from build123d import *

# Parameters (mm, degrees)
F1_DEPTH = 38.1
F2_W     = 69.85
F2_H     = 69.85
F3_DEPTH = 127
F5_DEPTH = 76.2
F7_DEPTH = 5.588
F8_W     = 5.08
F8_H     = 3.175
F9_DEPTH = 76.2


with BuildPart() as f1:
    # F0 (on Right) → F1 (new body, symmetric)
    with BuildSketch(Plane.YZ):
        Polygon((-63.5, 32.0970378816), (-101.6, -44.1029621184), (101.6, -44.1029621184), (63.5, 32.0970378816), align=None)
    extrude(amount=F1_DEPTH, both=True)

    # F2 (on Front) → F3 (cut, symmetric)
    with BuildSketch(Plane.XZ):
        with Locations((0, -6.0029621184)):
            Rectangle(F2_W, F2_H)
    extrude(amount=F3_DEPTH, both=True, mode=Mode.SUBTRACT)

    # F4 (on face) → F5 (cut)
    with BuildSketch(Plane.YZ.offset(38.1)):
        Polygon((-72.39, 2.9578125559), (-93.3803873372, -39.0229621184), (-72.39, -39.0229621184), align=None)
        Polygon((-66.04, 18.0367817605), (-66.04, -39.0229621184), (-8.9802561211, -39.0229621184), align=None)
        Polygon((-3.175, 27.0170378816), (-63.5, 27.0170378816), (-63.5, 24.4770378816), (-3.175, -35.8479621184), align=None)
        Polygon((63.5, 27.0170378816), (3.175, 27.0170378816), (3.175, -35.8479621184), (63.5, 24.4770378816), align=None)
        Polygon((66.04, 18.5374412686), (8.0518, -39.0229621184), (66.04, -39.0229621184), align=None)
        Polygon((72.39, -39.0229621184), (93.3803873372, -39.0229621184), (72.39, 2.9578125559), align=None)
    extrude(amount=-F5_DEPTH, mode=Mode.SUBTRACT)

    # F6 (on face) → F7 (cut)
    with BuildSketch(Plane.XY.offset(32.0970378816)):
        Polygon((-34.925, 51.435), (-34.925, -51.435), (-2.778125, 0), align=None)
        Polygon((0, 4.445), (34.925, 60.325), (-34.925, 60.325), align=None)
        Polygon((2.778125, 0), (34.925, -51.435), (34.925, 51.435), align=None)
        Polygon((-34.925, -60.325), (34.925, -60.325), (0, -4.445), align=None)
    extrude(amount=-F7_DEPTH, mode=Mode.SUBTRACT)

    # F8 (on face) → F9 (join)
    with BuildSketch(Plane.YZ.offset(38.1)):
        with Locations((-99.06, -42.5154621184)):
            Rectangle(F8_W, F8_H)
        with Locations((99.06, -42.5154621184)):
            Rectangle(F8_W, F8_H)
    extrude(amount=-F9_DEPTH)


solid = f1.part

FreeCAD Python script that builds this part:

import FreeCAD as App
import Part
import Sketcher
from FreeCAD import Vector
Q = App.Units.Quantity

doc = App.newDocument("Part")
body = doc.addObject("PartDesign::Body", "Body")

# Sketch on YZ plane
sketch1 = body.newObject("Sketcher::SketchObject", "Sketch")
sketch1.AttachmentSupport = (doc.getObject("YZ_Plane"), [""])
sketch1.MapMode = "FlatFace"
sketch1.addGeometry(Part.LineSegment(Vector(-64, 32, 0), Vector(-102, -44, 0)), False)
sketch1.addGeometry(Part.LineSegment(Vector(-102, -44, 0), Vector(102, -44, 0)), False)
sketch1.addGeometry(Part.LineSegment(Vector(102, -44, 0), Vector(64, 32, 0)), False)
sketch1.addGeometry(Part.LineSegment(Vector(64, 32, 0), Vector(-64, 32, 0)), False)
sketch1.addConstraint(Sketcher.Constraint("Coincident", 0, 2, 1, 1))
sketch1.addConstraint(Sketcher.Constraint("Coincident", 1, 2, 2, 1))
sketch1.addConstraint(Sketcher.Constraint("Coincident", 2, 2, 3, 1))
sketch1.addConstraint(Sketcher.Constraint("Coincident", 3, 2, 0, 1))
sketch1.addConstraint(Sketcher.Constraint("Horizontal", 1))
sketch1.addConstraint(Sketcher.Constraint("Horizontal", 3))
sketch1.addConstraint(Sketcher.Constraint("Equal", 0, 2))
sketch1.addConstraint(Sketcher.Constraint("DistanceX", 1, 1, 1, 2, Q("8 in")))
sketch1.addConstraint(Sketcher.Constraint("DistanceX", 3, 2, 3, 1, Q("5 in")))
sketch1.addConstraint(Sketcher.Constraint("DistanceX", 0, 2, -1, 1, Q("4 in")))
sketch1.addConstraint(Sketcher.Constraint("DistanceY", 1, 2, 2, 2, Q("3 in")))
sketch1.addConstraint(Sketcher.Constraint("DistanceY", 0, 2, -1, 1, Q("44.102962 mm")))
pad1 = body.newObject("PartDesign::Pad", "Pad")
pad1.Profile = sketch1
pad1.Length = Q("3 in")
pad1.Midplane = True

# Sketch on XZ plane
sketch2 = body.newObject("Sketcher::SketchObject", "Sketch001")
sketch2.AttachmentSupport = (doc.getObject("XZ_Plane"), [""])
sketch2.MapMode = "FlatFace"
sketch2.addGeometry(Part.LineSegment(Vector(-35, 29, 0), Vector(-35, -41, 0)), False)
sketch2.addGeometry(Part.LineSegment(Vector(-35, -41, 0), Vector(35, -41, 0)), False)
sketch2.addGeometry(Part.LineSegment(Vector(35, -41, 0), Vector(35, 29, 0)), False)
sketch2.addGeometry(Part.LineSegment(Vector(35, 29, 0), Vector(-35, 29, 0)), False)
sketch2.addConstraint(Sketcher.Constraint("Coincident", 0, 2, 1, 1))
sketch2.addConstraint(Sketcher.Constraint("Coincident", 1, 2, 2, 1))
sketch2.addConstraint(Sketcher.Constraint("Coincident", 2, 2, 3, 1))
sketch2.addConstraint(Sketcher.Constraint("Coincident", 3, 2, 0, 1))
sketch2.addConstraint(Sketcher.Constraint("Vertical", 0))
sketch2.addConstraint(Sketcher.Constraint("Horizontal", 1))
sketch2.addConstraint(Sketcher.Constraint("Vertical", 2))
sketch2.addConstraint(Sketcher.Constraint("Horizontal", 3))
sketch2.addConstraint(Sketcher.Constraint("Equal", 3, 0))
sketch2.addConstraint(Sketcher.Constraint("DistanceX", 1, 1, 1, 2, Q("2.75 in")))
sketch2.addConstraint(Sketcher.Constraint("DistanceX", 0, 2, -1, 1, Q("1.375 in")))
sketch2.addConstraint(Sketcher.Constraint("DistanceY", 0, 2, -1, 1, Q("40.927962 mm")))
pocket1 = body.newObject("PartDesign::Pocket", "Pocket")
pocket1.Profile = sketch2
pocket1.Length = Q("10 in")
pocket1.Midplane = True

# Sketch on YZ plane
sketch3 = body.newObject("Sketcher::SketchObject", "Sketch002")
sketch3.AttachmentSupport = (doc.getObject("YZ_Plane"), [""])
sketch3.MapMode = "FlatFace"
sketch3.AttachmentOffset = App.Placement(Vector(0, 0, 1.5 * 25.4), App.Rotation())
sketch3.addGeometry(Part.LineSegment(Vector(-72.4, 3, 0), Vector(-93.4, -39, 0)), False)
sketch3.addGeometry(Part.LineSegment(Vector(-93.4, -39, 0), Vector(-72.4, -39, 0)), False)
sketch3.addGeometry(Part.LineSegment(Vector(-72.4, -39, 0), Vector(-72.4, 3, 0)), False)
sketch3.addGeometry(Part.LineSegment(Vector(-66, 18, 0), Vector(-66, -39, 0)), False)
sketch3.addGeometry(Part.LineSegment(Vector(-66, -39, 0), Vector(-9, -39, 0)), False)
sketch3.addGeometry(Part.LineSegment(Vector(-9, -39, 0), Vector(-66, 18, 0)), False)
sketch3.addGeometry(Part.LineSegment(Vector(-3.2, 27, 0), Vector(-63.5, 27, 0)), False)
sketch3.addGeometry(Part.LineSegment(Vector(-63.5, 27, 0), Vector(-63.5, 24.5, 0)), False)
sketch3.addGeometry(Part.LineSegment(Vector(-63.5, 24.5, 0), Vector(-3.2, -35.8, 0)), False)
sketch3.addGeometry(Part.LineSegment(Vector(-3.2, -35.8, 0), Vector(-3.2, 27, 0)), False)
sketch3.addGeometry(Part.LineSegment(Vector(63.5, 27, 0), Vector(3.2, 27, 0)), False)
sketch3.addGeometry(Part.LineSegment(Vector(3.2, 27, 0), Vector(3.2, -35.8, 0)), False)
sketch3.addGeometry(Part.LineSegment(Vector(3.2, -35.8, 0), Vector(63.5, 24.5, 0)), False)
sketch3.addGeometry(Part.LineSegment(Vector(63.5, 24.5, 0), Vector(63.5, 27, 0)), False)
sketch3.addGeometry(Part.LineSegment(Vector(66, 18.5, 0), Vector(8.1, -39, 0)), False)
sketch3.addGeometry(Part.LineSegment(Vector(8.1, -39, 0), Vector(66, -39, 0)), False)
sketch3.addGeometry(Part.LineSegment(Vector(66, -39, 0), Vector(66, 18.5, 0)), False)
sketch3.addGeometry(Part.LineSegment(Vector(72.4, -39, 0), Vector(93.4, -39, 0)), False)
sketch3.addGeometry(Part.LineSegment(Vector(93.4, -39, 0), Vector(72.4, 3, 0)), False)
sketch3.addGeometry(Part.LineSegment(Vector(72.4, 3, 0), Vector(72.4, -39, 0)), False)
sketch3.addConstraint(Sketcher.Constraint("Coincident", 0, 2, 1, 1))
sketch3.addConstraint(Sketcher.Constraint("Coincident", 1, 2, 2, 1))
sketch3.addConstraint(Sketcher.Constraint("Coincident", 2, 2, 0, 1))
sketch3.addConstraint(Sketcher.Constraint("Coincident", 3, 2, 4, 1))
sketch3.addConstraint(Sketcher.Constraint("Coincident", 4, 2, 5, 1))
sketch3.addConstraint(Sketcher.Constraint("Coincident", 5, 2, 3, 1))
sketch3.addConstraint(Sketcher.Constraint("Coincident", 6, 2, 7, 1))
sketch3.addConstraint(Sketcher.Constraint("Coincident", 7, 2, 8, 1))
sketch3.addConstraint(Sketcher.Constraint("Coincident", 8, 2, 9, 1))
sketch3.addConstraint(Sketcher.Constraint("Coincident", 9, 2, 6, 1))
sketch3.addConstraint(Sketcher.Constraint("Coincident", 10, 2, 11, 1))
sketch3.addConstraint(Sketcher.Constraint("Coincident", 11, 2, 12, 1))
sketch3.addConstraint(Sketcher.Constraint("Coincident", 12, 2, 13, 1))
sketch3.addConstraint(Sketcher.Constraint("Coincident", 13, 2, 10, 1))
sketch3.addConstraint(Sketcher.Constraint("Coincident", 14, 2, 15, 1))
sketch3.addConstraint(Sketcher.Constraint("Coincident", 15, 2, 16, 1))
sketch3.addConstraint(Sketcher.Constraint("Coincident", 16, 2, 14, 1))
sketch3.addConstraint(Sketcher.Constraint("Coincident", 17, 2, 18, 1))
sketch3.addConstraint(Sketcher.Constraint("Coincident", 18, 2, 19, 1))
sketch3.addConstraint(Sketcher.Constraint("Coincident", 19, 2, 17, 1))
sketch3.addConstraint(Sketcher.Constraint("Horizontal", 1))
sketch3.addConstraint(Sketcher.Constraint("Vertical", 2))
sketch3.addConstraint(Sketcher.Constraint("Vertical", 3))
sketch3.addConstraint(Sketcher.Constraint("Horizontal", 4))
sketch3.addConstraint(Sketcher.Constraint("Horizontal", 6))
sketch3.addConstraint(Sketcher.Constraint("Vertical", 7))
sketch3.addConstraint(Sketcher.Constraint("Vertical", 9))
sketch3.addConstraint(Sketcher.Constraint("Horizontal", 10))
sketch3.addConstraint(Sketcher.Constraint("Vertical", 11))
sketch3.addConstraint(Sketcher.Constraint("Vertical", 13))
sketch3.addConstraint(Sketcher.Constraint("Horizontal", 15))
sketch3.addConstraint(Sketcher.Constraint("Vertical", 16))
sketch3.addConstraint(Sketcher.Constraint("Horizontal", 17))
sketch3.addConstraint(Sketcher.Constraint("Vertical", 19))
sketch3.addConstraint(Sketcher.Constraint("Symmetric", 9, 2, 10, 2, -2))
sketch3.addConstraint(Sketcher.Constraint("Symmetric", 7, 2, 12, 2, -2))
sketch3.addConstraint(Sketcher.Constraint("Symmetric", 3, 2, 15, 2, -2))
sketch3.addConstraint(Sketcher.Constraint("Symmetric", 0, 2, 17, 2, -2))
sketch3.addConstraint(Sketcher.Constraint("Symmetric", 2, 2, 18, 2, -2))
sketch3.addConstraint(Sketcher.Constraint("Parallel", 5, 8))
sketch3.addConstraint(Sketcher.Constraint("Perpendicular", 8, 12))
sketch3.addConstraint(Sketcher.Constraint("Horizontal", 1, 2, 3, 2))
sketch3.addConstraint(Sketcher.Constraint("Horizontal", 8, 2, 11, 2))
sketch3.addConstraint(Sketcher.Constraint("DistanceY", 7, 2, 7, 1, Q("0.1 in")))
sketch3.addConstraint(Sketcher.Constraint("DistanceX", 3, 2, -1, 1, Q("2.6 in")))
sketch3.addConstraint(Sketcher.Constraint("DistanceX", 6, 2, -1, 1, Q("2.5 in")))
sketch3.addConstraint(Sketcher.Constraint("DistanceY", 3, 2, 6, 2, Q("2.6 in")))
sketch3.addConstraint(Sketcher.Constraint("DistanceX", 6, 2, 6, 1, Q("2.375 in")))
sketch3.addConstraint(Sketcher.Constraint("DistanceX", 15, 1, 15, 2, Q("2.283 in")))
sketch3.addConstraint(Sketcher.Constraint("DistanceX", 1, 2, -1, 1, Q("2.85 in")))
sketch3.addConstraint(Sketcher.Constraint("Distance", 14, Q("81.705761 mm")))
sketch3.addConstraint(Sketcher.Constraint("DistanceX", 1, 1, 1, 2, Q("20.990387 mm")))
sketch3.addConstraint(Sketcher.Constraint("DistanceX", 4, 1, 4, 2, Q("57.059744 mm")))
sketch3.addConstraint(Sketcher.Constraint("DistanceY", 2, 1, 2, 2, Q("41.980775 mm")))
sketch3.addConstraint(Sketcher.Constraint("DistanceY", -1, 1, 5, 2, Q("18.036782 mm")))
pocket2 = body.newObject("PartDesign::Pocket", "Pocket001")
pocket2.Profile = sketch3
pocket2.Length = Q("3 in")

# Sketch on XY plane
sketch4 = body.newObject("Sketcher::SketchObject", "Sketch003")
sketch4.AttachmentSupport = (doc.getObject("XY_Plane"), [""])
sketch4.MapMode = "FlatFace"
sketch4.AttachmentOffset = App.Placement(Vector(0, 0, 32.097038), App.Rotation())
sketch4.addGeometry(Part.LineSegment(Vector(-35, 51, 0), Vector(-35, -51, 0)), False)
sketch4.addGeometry(Part.LineSegment(Vector(-35, -51, 0), Vector(-3, 0, 0)), False)
sketch4.addGeometry(Part.LineSegment(Vector(-3, 0, 0), Vector(-35, 51, 0)), False)
sketch4.addGeometry(Part.LineSegment(Vector(0, 4, 0), Vector(35, 60, 0)), False)
sketch4.addGeometry(Part.LineSegment(Vector(35, 60, 0), Vector(-35, 60, 0)), False)
sketch4.addGeometry(Part.LineSegment(Vector(-35, 60, 0), Vector(0, 4, 0)), False)
sketch4.addGeometry(Part.LineSegment(Vector(3, 0, 0), Vector(35, -51, 0)), False)
sketch4.addGeometry(Part.LineSegment(Vector(35, -51, 0), Vector(35, 51, 0)), False)
sketch4.addGeometry(Part.LineSegment(Vector(35, 51, 0), Vector(3, 0, 0)), False)
sketch4.addGeometry(Part.LineSegment(Vector(-35, -60, 0), Vector(35, -60, 0)), False)
sketch4.addGeometry(Part.LineSegment(Vector(35, -60, 0), Vector(0, -4, 0)), False)
sketch4.addGeometry(Part.LineSegment(Vector(0, -4, 0), Vector(-35, -60, 0)), False)
sketch4.addConstraint(Sketcher.Constraint("Coincident", 0, 2, 1, 1))
sketch4.addConstraint(Sketcher.Constraint("Coincident", 1, 2, 2, 1))
sketch4.addConstraint(Sketcher.Constraint("Coincident", 2, 2, 0, 1))
sketch4.addConstraint(Sketcher.Constraint("Coincident", 3, 2, 4, 1))
sketch4.addConstraint(Sketcher.Constraint("Coincident", 4, 2, 5, 1))
sketch4.addConstraint(Sketcher.Constraint("Coincident", 5, 2, 3, 1))
sketch4.addConstraint(Sketcher.Constraint("Coincident", 6, 2, 7, 1))
sketch4.addConstraint(Sketcher.Constraint("Coincident", 7, 2, 8, 1))
sketch4.addConstraint(Sketcher.Constraint("Coincident", 8, 2, 6, 1))
sketch4.addConstraint(Sketcher.Constraint("Coincident", 9, 2, 10, 1))
sketch4.addConstraint(Sketcher.Constraint("Coincident", 10, 2, 11, 1))
sketch4.addConstraint(Sketcher.Constraint("Coincident", 11, 2, 9, 1))
sketch4.addConstraint(Sketcher.Constraint("Vertical", 0))
sketch4.addConstraint(Sketcher.Constraint("Horizontal", 4))
sketch4.addConstraint(Sketcher.Constraint("Vertical", 7))
sketch4.addConstraint(Sketcher.Constraint("Horizontal", 9))
sketch4.addConstraint(Sketcher.Constraint("Symmetric", 2, 2, 6, 2, -1, 1))
sketch4.addConstraint(Sketcher.Constraint("Symmetric", 1, 2, 8, 2, -1, 1))
sketch4.addConstraint(Sketcher.Constraint("Symmetric", 4, 2, 9, 2, -1, 1))
sketch4.addConstraint(Sketcher.Constraint("Symmetric", 5, 2, 10, 2, -1, 1))
sketch4.addConstraint(Sketcher.Constraint("PointOnObject", 1, 2, -1))
sketch4.addConstraint(Sketcher.Constraint("PointOnObject", 5, 2, -2))
sketch4.addConstraint(Sketcher.Constraint("Parallel", 1, 3))
sketch4.addConstraint(Sketcher.Constraint("Parallel", 2, 5))
sketch4.addConstraint(Sketcher.Constraint("Parallel", 3, 8))
sketch4.addConstraint(Sketcher.Constraint("Parallel", 8, 11))
sketch4.addConstraint(Sketcher.Constraint("Horizontal", 0, 2, 6, 2))
sketch4.addConstraint(Sketcher.Constraint("Vertical", 2, 2, 4, 2))
sketch4.addConstraint(Sketcher.Constraint("DistanceX", 4, 2, 4, 1, Q("2.75 in")))
sketch4.addConstraint(Sketcher.Constraint("DistanceY", 0, 2, 0, 1, Q("4.05 in")))
sketch4.addConstraint(Sketcher.Constraint("DistanceY", 0, 2, 3, 2, Q("4.4 in")))
sketch4.addConstraint(Sketcher.Constraint("DistanceY", 0, 2, 5, 2, Q("2.2 in")))
pocket3 = body.newObject("PartDesign::Pocket", "Pocket002")
pocket3.Profile = sketch4
pocket3.Length = Q("0.22 in")

# Sketch on YZ plane
sketch5 = body.newObject("Sketcher::SketchObject", "Sketch004")
sketch5.AttachmentSupport = (doc.getObject("YZ_Plane"), [""])
sketch5.MapMode = "FlatFace"
sketch5.AttachmentOffset = App.Placement(Vector(0, 0, 1.5 * 25.4), App.Rotation())
sketch5.addGeometry(Part.LineSegment(Vector(-101.6, -40.9, 0), Vector(-101.6, -44.1, 0)), False)
sketch5.addGeometry(Part.LineSegment(Vector(-101.6, -44.1, 0), Vector(-96.5, -44.1, 0)), False)
sketch5.addGeometry(Part.LineSegment(Vector(-96.5, -44.1, 0), Vector(-96.5, -40.9, 0)), False)
sketch5.addGeometry(Part.LineSegment(Vector(-96.5, -40.9, 0), Vector(-101.6, -40.9, 0)), False)
sketch5.addGeometry(Part.LineSegment(Vector(96.5, -40.9, 0), Vector(96.5, -44.1, 0)), False)
sketch5.addGeometry(Part.LineSegment(Vector(96.5, -44.1, 0), Vector(101.6, -44.1, 0)), False)
sketch5.addGeometry(Part.LineSegment(Vector(101.6, -44.1, 0), Vector(101.6, -40.9, 0)), False)
sketch5.addGeometry(Part.LineSegment(Vector(101.6, -40.9, 0), Vector(96.5, -40.9, 0)), False)
sketch5.addConstraint(Sketcher.Constraint("Coincident", 0, 2, 1, 1))
sketch5.addConstraint(Sketcher.Constraint("Coincident", 1, 2, 2, 1))
sketch5.addConstraint(Sketcher.Constraint("Coincident", 2, 2, 3, 1))
sketch5.addConstraint(Sketcher.Constraint("Coincident", 3, 2, 0, 1))
sketch5.addConstraint(Sketcher.Constraint("Coincident", 4, 2, 5, 1))
sketch5.addConstraint(Sketcher.Constraint("Coincident", 5, 2, 6, 1))
sketch5.addConstraint(Sketcher.Constraint("Coincident", 6, 2, 7, 1))
sketch5.addConstraint(Sketcher.Constraint("Coincident", 7, 2, 4, 1))
sketch5.addConstraint(Sketcher.Constraint("Vertical", 0))
sketch5.addConstraint(Sketcher.Constraint("Horizontal", 1))
sketch5.addConstraint(Sketcher.Constraint("Vertical", 2))
sketch5.addConstraint(Sketcher.Constraint("Horizontal", 3))
sketch5.addConstraint(Sketcher.Constraint("Vertical", 4))
sketch5.addConstraint(Sketcher.Constraint("Horizontal", 5))
sketch5.addConstraint(Sketcher.Constraint("Vertical", 6))
sketch5.addConstraint(Sketcher.Constraint("Horizontal", 7))
sketch5.addConstraint(Sketcher.Constraint("Symmetric", 1, 2, 4, 2, -2))
sketch5.addConstraint(Sketcher.Constraint("Symmetric", 3, 2, 6, 2, -2))
sketch5.addConstraint(Sketcher.Constraint("DistanceX", 1, 1, 1, 2, Q("0.2 in")))
sketch5.addConstraint(Sketcher.Constraint("DistanceX", 0, 2, -1, 1, Q("4 in")))
sketch5.addConstraint(Sketcher.Constraint("DistanceY", 0, 2, 0, 1, Q("0.125 in")))
sketch5.addConstraint(Sketcher.Constraint("DistanceY", 0, 2, -1, 1, Q("44.102962 mm")))
pad2 = body.newObject("PartDesign::Pad", "Pad001")
pad2.Profile = sketch5
pad2.Length = Q("3 in")
pad2.Reversed = True

doc.recompute()
